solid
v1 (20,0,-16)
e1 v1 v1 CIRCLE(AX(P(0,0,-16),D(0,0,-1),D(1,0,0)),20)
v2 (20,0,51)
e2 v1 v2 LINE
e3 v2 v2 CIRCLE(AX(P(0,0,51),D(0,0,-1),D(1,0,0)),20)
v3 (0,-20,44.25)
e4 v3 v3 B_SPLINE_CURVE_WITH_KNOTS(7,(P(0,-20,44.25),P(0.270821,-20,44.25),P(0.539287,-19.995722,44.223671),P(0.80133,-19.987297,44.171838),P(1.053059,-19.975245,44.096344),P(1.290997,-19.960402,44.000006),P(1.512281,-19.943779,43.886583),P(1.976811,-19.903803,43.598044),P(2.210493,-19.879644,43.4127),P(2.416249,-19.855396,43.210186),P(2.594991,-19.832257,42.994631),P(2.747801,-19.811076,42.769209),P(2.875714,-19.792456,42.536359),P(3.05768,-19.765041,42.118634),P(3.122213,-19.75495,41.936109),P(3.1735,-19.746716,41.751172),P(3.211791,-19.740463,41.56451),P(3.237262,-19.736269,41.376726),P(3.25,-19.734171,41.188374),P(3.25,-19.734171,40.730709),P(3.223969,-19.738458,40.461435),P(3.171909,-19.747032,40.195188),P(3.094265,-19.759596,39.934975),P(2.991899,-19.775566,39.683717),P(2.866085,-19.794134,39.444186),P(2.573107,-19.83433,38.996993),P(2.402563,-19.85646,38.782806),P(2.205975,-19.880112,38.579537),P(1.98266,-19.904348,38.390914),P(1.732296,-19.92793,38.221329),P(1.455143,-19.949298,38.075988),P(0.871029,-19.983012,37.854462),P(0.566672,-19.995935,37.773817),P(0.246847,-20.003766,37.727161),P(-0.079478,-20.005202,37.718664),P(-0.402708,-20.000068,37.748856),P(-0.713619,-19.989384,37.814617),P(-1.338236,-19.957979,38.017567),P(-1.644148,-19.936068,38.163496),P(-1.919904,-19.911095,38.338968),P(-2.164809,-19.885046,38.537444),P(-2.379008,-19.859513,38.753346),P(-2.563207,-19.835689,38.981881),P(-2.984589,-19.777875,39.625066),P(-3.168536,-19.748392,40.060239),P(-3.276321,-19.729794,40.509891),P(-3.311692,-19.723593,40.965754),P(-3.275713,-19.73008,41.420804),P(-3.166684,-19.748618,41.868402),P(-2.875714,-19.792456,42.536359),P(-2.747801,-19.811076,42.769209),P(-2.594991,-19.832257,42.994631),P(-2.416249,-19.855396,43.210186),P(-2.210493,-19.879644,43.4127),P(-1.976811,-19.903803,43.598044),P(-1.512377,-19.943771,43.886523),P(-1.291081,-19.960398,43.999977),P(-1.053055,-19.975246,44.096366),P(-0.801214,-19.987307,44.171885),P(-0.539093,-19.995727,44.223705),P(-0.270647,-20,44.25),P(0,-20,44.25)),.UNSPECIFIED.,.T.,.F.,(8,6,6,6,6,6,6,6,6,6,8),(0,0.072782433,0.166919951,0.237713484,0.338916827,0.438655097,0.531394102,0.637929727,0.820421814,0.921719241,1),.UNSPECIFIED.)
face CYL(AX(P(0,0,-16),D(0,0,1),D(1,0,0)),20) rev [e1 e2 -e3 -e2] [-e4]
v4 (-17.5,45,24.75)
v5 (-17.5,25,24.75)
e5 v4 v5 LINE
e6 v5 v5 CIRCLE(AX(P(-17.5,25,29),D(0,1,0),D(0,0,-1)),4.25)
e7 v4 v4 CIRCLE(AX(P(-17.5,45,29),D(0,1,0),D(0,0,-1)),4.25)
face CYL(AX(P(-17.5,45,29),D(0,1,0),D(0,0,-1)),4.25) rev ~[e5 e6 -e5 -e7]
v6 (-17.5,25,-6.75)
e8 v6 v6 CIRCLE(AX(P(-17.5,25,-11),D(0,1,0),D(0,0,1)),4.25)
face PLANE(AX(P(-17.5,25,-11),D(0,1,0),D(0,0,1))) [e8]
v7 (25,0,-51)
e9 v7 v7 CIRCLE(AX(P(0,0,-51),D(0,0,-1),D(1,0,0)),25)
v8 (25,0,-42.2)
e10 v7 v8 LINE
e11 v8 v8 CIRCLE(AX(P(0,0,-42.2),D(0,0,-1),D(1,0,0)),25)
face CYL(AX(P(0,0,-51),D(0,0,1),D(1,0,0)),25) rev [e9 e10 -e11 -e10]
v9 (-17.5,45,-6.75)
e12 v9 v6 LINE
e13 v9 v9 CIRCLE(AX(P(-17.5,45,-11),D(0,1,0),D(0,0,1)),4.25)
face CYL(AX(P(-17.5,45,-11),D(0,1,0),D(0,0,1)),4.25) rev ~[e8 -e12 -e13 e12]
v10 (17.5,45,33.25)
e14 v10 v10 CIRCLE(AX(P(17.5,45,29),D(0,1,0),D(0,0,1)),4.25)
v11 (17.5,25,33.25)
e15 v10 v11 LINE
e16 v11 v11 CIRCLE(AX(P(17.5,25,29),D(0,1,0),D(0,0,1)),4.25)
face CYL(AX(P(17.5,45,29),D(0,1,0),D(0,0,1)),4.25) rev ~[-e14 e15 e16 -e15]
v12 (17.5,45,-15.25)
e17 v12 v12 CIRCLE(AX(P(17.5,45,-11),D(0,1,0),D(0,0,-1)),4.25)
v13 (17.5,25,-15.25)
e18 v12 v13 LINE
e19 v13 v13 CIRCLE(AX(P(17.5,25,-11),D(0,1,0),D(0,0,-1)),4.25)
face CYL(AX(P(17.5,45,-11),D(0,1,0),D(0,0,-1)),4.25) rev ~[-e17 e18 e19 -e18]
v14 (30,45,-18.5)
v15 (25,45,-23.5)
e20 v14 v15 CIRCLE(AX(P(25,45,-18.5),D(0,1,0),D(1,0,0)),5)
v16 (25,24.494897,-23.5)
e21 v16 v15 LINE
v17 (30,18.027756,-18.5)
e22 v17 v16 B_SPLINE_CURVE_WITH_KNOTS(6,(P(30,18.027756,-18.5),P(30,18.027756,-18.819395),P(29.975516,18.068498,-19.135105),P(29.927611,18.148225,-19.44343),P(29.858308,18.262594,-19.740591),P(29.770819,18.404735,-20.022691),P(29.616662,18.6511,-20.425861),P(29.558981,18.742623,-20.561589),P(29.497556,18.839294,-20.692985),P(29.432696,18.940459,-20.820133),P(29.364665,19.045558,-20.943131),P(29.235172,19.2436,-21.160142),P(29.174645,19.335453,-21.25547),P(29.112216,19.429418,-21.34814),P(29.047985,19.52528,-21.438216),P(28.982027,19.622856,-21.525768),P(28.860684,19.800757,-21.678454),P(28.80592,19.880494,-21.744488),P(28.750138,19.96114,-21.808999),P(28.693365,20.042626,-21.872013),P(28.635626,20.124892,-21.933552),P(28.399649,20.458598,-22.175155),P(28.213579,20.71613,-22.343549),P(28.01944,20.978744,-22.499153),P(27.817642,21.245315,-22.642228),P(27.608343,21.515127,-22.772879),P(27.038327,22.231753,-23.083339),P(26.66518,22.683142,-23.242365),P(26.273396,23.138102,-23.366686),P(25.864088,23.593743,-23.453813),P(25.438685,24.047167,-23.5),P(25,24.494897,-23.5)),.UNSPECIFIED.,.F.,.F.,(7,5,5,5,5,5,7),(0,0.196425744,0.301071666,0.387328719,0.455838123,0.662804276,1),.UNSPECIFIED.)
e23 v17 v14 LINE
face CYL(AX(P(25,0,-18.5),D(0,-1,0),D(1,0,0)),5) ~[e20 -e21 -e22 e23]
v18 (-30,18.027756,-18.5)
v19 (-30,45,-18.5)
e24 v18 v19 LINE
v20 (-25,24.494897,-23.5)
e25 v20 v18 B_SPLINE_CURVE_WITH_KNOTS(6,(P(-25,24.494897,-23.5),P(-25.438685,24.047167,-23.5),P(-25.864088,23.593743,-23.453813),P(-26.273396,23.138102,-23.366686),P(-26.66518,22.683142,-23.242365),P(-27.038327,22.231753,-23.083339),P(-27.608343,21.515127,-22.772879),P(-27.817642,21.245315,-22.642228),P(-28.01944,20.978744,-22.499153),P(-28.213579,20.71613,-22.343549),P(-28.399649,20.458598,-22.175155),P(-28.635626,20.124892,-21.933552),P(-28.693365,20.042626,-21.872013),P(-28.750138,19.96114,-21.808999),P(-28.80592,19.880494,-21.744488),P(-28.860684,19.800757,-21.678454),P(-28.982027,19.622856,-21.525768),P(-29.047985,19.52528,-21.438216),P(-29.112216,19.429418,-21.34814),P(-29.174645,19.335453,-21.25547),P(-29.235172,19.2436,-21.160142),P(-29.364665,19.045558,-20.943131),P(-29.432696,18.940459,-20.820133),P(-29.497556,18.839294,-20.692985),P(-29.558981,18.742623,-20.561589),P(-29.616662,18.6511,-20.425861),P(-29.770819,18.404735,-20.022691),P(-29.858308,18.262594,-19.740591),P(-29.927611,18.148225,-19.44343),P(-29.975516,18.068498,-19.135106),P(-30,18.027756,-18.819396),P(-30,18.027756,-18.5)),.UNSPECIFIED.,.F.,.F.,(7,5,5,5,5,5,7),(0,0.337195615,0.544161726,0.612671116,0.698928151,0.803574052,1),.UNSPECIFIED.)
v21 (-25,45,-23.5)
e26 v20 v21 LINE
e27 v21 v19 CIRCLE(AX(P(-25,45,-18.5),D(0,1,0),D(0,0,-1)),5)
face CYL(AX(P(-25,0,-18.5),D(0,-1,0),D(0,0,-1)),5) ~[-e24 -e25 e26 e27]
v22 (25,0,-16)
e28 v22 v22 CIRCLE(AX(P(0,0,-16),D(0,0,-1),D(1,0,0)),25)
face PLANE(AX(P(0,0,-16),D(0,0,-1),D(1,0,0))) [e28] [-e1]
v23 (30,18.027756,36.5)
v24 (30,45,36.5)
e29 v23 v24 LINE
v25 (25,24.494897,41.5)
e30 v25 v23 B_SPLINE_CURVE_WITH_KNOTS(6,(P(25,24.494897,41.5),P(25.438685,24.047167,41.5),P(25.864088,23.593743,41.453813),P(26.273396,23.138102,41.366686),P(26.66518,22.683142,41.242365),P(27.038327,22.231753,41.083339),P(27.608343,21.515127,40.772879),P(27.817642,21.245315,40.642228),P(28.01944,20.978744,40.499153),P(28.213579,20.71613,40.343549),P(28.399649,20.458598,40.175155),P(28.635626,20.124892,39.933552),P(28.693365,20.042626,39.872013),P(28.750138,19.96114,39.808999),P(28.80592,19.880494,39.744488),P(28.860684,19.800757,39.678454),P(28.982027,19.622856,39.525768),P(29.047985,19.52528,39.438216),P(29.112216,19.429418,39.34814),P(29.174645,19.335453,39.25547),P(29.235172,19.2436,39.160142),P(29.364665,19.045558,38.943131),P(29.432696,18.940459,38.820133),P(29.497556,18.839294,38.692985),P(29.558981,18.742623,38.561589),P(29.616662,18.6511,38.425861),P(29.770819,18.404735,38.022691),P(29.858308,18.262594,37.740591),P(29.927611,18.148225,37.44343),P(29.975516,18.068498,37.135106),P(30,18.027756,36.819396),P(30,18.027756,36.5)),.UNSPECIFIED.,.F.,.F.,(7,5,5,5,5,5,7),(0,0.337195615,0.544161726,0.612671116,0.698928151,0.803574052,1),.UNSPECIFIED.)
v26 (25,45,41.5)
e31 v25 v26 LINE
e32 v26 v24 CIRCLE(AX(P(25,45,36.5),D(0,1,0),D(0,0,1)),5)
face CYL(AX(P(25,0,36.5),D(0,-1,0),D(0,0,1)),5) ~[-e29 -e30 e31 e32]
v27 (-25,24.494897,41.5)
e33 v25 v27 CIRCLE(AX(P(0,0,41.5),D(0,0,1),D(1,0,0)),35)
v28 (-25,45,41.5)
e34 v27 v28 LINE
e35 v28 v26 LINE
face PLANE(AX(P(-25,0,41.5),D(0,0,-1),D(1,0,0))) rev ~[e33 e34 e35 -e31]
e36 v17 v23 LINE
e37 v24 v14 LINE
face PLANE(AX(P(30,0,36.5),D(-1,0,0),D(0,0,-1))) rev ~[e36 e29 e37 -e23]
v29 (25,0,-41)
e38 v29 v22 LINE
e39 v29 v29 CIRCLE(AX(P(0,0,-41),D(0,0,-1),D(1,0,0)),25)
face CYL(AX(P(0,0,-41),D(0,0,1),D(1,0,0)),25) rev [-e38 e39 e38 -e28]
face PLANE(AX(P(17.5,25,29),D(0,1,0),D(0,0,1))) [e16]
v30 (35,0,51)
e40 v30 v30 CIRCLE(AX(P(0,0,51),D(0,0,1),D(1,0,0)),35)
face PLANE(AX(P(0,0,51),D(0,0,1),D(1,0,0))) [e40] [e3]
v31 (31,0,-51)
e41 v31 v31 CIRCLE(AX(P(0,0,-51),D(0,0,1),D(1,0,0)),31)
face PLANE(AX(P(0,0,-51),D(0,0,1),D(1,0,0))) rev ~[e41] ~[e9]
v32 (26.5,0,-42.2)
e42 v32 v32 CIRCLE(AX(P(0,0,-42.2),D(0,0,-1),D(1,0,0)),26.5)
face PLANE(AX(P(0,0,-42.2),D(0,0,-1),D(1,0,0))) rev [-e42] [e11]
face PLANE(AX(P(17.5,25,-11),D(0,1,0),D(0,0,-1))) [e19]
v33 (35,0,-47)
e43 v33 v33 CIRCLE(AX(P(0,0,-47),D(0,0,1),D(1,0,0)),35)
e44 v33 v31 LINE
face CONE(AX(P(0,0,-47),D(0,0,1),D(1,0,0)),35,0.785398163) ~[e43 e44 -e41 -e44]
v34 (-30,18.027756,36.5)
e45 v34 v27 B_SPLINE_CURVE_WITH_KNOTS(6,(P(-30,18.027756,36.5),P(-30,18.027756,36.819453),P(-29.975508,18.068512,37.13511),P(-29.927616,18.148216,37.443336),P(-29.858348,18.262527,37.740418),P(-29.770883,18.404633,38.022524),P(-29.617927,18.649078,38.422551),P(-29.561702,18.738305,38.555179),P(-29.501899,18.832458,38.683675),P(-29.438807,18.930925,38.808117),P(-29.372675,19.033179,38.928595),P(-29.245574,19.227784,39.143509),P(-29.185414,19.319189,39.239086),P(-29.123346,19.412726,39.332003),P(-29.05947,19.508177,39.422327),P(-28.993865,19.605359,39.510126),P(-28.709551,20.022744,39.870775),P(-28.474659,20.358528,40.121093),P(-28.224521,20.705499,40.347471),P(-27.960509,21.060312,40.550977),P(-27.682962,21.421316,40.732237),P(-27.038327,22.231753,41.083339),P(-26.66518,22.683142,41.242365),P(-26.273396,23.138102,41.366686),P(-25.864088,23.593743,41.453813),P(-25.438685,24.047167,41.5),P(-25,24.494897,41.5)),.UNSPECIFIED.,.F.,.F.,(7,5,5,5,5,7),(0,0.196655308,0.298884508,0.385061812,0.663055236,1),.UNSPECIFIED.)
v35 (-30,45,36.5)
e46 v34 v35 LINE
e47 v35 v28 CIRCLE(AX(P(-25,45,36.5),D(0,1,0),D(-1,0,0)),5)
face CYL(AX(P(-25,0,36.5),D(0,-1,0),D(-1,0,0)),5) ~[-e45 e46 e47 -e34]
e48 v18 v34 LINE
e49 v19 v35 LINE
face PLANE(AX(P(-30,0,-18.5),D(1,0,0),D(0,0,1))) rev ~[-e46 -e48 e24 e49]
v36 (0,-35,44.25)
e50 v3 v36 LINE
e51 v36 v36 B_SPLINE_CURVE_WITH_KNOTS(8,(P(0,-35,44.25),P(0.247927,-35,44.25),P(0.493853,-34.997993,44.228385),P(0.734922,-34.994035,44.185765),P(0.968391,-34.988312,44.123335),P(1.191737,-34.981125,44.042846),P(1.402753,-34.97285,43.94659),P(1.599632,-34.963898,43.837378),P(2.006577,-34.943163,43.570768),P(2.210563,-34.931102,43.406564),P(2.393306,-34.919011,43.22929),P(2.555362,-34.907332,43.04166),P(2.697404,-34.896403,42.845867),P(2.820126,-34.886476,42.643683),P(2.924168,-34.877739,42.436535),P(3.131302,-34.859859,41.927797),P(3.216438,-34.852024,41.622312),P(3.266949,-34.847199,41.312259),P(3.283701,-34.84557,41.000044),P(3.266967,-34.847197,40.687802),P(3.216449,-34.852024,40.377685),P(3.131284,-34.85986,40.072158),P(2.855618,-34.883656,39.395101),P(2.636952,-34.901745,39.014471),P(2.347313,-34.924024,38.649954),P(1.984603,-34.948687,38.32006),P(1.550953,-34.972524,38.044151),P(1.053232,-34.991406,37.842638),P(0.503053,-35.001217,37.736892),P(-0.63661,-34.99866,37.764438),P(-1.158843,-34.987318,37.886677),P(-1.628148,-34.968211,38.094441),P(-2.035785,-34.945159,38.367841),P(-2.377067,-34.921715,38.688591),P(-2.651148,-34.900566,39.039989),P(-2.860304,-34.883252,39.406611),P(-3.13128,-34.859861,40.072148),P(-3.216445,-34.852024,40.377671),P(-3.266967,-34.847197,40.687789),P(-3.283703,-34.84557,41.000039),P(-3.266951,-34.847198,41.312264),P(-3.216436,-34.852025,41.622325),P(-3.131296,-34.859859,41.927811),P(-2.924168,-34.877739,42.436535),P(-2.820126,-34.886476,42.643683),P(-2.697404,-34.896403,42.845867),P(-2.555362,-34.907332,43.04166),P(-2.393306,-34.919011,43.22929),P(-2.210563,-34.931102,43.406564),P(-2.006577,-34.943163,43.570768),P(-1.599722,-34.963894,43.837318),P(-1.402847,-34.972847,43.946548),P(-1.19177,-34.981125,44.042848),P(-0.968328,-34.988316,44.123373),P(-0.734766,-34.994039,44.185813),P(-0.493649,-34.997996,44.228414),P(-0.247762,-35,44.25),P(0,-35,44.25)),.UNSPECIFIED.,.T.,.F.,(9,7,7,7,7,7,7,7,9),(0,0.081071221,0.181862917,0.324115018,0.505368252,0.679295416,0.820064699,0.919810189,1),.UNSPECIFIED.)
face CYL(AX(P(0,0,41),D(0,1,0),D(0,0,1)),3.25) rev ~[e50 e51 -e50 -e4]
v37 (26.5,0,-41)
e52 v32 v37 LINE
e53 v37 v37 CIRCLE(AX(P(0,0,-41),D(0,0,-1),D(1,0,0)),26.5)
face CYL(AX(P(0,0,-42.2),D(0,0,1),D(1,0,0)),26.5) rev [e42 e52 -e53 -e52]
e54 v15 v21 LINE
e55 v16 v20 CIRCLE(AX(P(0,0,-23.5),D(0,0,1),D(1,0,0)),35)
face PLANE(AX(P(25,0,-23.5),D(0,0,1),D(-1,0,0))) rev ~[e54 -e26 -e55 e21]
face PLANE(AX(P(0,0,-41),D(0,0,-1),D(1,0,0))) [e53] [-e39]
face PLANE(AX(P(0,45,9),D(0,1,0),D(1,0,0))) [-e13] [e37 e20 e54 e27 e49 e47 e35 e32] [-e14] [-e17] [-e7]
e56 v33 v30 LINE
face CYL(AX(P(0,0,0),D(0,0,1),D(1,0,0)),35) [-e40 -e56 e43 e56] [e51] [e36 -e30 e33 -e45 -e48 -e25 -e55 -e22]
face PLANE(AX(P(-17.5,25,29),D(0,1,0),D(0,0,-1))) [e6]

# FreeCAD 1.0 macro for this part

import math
import FreeCAD as App
import Part
import Sketcher

V = App.Vector


def edges_at(feature, points):
    """Names of the edges that pass closest to the given points."""
    edges = feature.Shape.Edges
    near = lambda p: min(range(len(edges)), key=lambda i: edges[i].distToShape(Part.Vertex(*p))[0])
    return sorted({f"Edge{near(p) + 1}" for p in points})


def add_polygon(sketch, points):
    """Adds a closed chain of lines whose ends are joined by coincident constraints."""
    first, n = sketch.GeometryCount, len(points)
    for a, b in zip(points, points[1:] + points[:1]):
        sketch.addGeometry(Part.LineSegment(App.Vector(*a, 0), App.Vector(*b, 0)), False)
    for i in range(n):
        sketch.addConstraint(Sketcher.Constraint("Coincident", first + i, 2, first + (i + 1) % n, 1))

doc = App.newDocument("Part")
body = doc.addObject("PartDesign::Body", "Body")

# Sketch on XY plane
sketch1 = body.newObject("Sketcher::SketchObject", "Sketch")
sketch1.AttachmentSupport = (doc.getObject("XY_Plane"), [""])
sketch1.MapMode = "FlatFace"
sketch1.addGeometry(Part.Circle(V(0, 0, 0), V(0, 0, 1), 35), False)
sketch1.addConstraint(Sketcher.Constraint("Coincident", 0, 3, -1, 1))
sketch1.addConstraint(Sketcher.Constraint("Diameter", 0, 70.0))
pad1 = body.newObject("PartDesign::Pad", "Pad")
pad1.Profile = sketch1
pad1.Length = 102
pad1.Midplane = True

# Sketch on XZ plane
sketch2 = body.newObject("Sketcher::SketchObject", "Sketch001")
sketch2.AttachmentSupport = (doc.getObject("XZ_Plane"), [""])
sketch2.MapMode = "FlatFace"
sketch2.addGeometry(Part.LineSegment(V(-25, 42, 0), V(25, 42, 0)), False)
sketch2.addGeometry(Part.ArcOfCircle(Part.Circle(V(25, 36, 0), V(0, 0, 1), 5), math.radians(0), math.radians(90)), False)
sketch2.addGeometry(Part.LineSegment(V(30, 36, 0), V(30, -18, 0)), False)
sketch2.addGeometry(Part.ArcOfCircle(Part.Circle(V(25, -18, 0), V(0, 0, 1), 5), math.radians(-90), math.radians(0)), False)
sketch2.addGeometry(Part.LineSegment(V(25, -24, 0), V(-25, -24, 0)), False)
sketch2.addGeometry(Part.ArcOfCircle(Part.Circle(V(-25, -18, 0), V(0, 0, 1), 5), math.radians(180), math.radians(270)), False)
sketch2.addGeometry(Part.LineSegment(V(-30, -18, 0), V(-30, 36, 0)), False)
sketch2.addGeometry(Part.ArcOfCircle(Part.Circle(V(-25, 36, 0), V(0, 0, 1), 5), math.radians(90), math.radians(180)), False)
sketch2.addConstraint(Sketcher.Constraint("Tangent", 0, 2, 1, 2))
sketch2.addConstraint(Sketcher.Constraint("Tangent", 1, 1, 2, 1))
sketch2.addConstraint(Sketcher.Constraint("Tangent", 2, 2, 3, 2))
sketch2.addConstraint(Sketcher.Constraint("Tangent", 3, 1, 4, 1))
sketch2.addConstraint(Sketcher.Constraint("Tangent", 4, 2, 5, 2))
sketch2.addConstraint(Sketcher.Constraint("Tangent", 5, 1, 6, 1))
sketch2.addConstraint(Sketcher.Constraint("Tangent", 6, 2, 7, 2))
sketch2.addConstraint(Sketcher.Constraint("Tangent", 7, 1, 0, 1))
sketch2.addConstraint(Sketcher.Constraint("Horizontal", 0))
sketch2.addConstraint(Sketcher.Constraint("Vertical", 2))
sketch2.addConstraint(Sketcher.Constraint("Horizontal", 4))
sketch2.addConstraint(Sketcher.Constraint("Vertical", 6))
sketch2.addConstraint(Sketcher.Constraint("Equal", 1, 3))
sketch2.addConstraint(Sketcher.Constraint("Equal", 3, 5))
sketch2.addConstraint(Sketcher.Constraint("Equal", 5, 7))
sketch2.addConstraint(Sketcher.Constraint("Radius", 1, 5.0))
sketch2.addConstraint(Sketcher.Constraint("DistanceX", 0, 1, 0, 2, 50.0))
sketch2.addConstraint(Sketcher.Constraint("DistanceY", 2, 2, 2, 1, 55.0))
sketch2.addConstraint(Sketcher.Constraint("DistanceX", -1, 1, 1, 3, 25.0))
sketch2.addConstraint(Sketcher.Constraint("DistanceY", -1, 1, 1, 3, 36.5))
pad2 = body.newObject("PartDesign::Pad", "Pad001")
pad2.Profile = sketch2
pad2.Length = 45
pad2.Reversed = True

# Sketch on YZ plane
sketch3 = body.newObject("Sketcher::SketchObject", "Sketch002")
sketch3.AttachmentSupport = (doc.getObject("YZ_Plane"), [""])
sketch3.MapMode = "FlatFace"
add_polygon(sketch3, [(25, -51), (25, -42.2), (26.5, -42.2), (26.5, -41), (25, -41), (25, -16), (20, -16), (20, 51), (0, 51), (0, -51)])  # lines 0-9
sketch3.addConstraint(Sketcher.Constraint("Vertical", 0))
sketch3.addConstraint(Sketcher.Constraint("Horizontal", 1))
sketch3.addConstraint(Sketcher.Constraint("Vertical", 2))
sketch3.addConstraint(Sketcher.Constraint("Horizontal", 3))
sketch3.addConstraint(Sketcher.Constraint("Vertical", 4))
sketch3.addConstraint(Sketcher.Constraint("Horizontal", 5))
sketch3.addConstraint(Sketcher.Constraint("Vertical", 6))
sketch3.addConstraint(Sketcher.Constraint("Horizontal", 7))
sketch3.addConstraint(Sketcher.Constraint("Vertical", 8))
sketch3.addConstraint(Sketcher.Constraint("Horizontal", 9))
sketch3.addConstraint(Sketcher.Constraint("Symmetric", 7, 2, 8, 2, -1, 1))
sketch3.addConstraint(Sketcher.Constraint("Vertical", 0, 2, 3, 2))
sketch3.addConstraint(Sketcher.Constraint("Equal", 9, 4))
sketch3.addConstraint(Sketcher.Constraint("DistanceX", 5, 2, 5, 1, 5.0))
sketch3.addConstraint(Sketcher.Constraint("DistanceX", 7, 2, 7, 1, 20.0))
sketch3.addConstraint(Sketcher.Constraint("DistanceY", 6, 1, 6, 2, 67.0))
sketch3.addConstraint(Sketcher.Constraint("DistanceY", 8, 2, 8, 1, 102.0))
sketch3.addConstraint(Sketcher.Constraint("DistanceX", 1, 1, 1, 2, 1.5))
sketch3.addConstraint(Sketcher.Constraint("DistanceY", 0, 1, 0, 2, 8.8))
groove = body.newObject("PartDesign::Groove", "Groove")
groove.Profile = sketch3
groove.ReferenceAxis = (sketch3, ["V_Axis"])
groove.Angle = 360
doc.recompute()

chamfer = body.newObject("PartDesign::Chamfer", "Chamfer")
chamfer.Base = (groove, edges_at(groove, [(-35, 0, -51)]))
chamfer.Size = 4

# Sketch on XZ plane
sketch4 = body.newObject("Sketcher::SketchObject", "Sketch003")
sketch4.AttachmentSupport = (doc.getObject("XZ_Plane"), [""])
sketch4.MapMode = "FlatFace"
sketch4.AttachmentOffset = App.Placement(V(0, 0, -45), App.Rotation())
sketch4.addGeometry(Part.Circle(V(-17.5, -11, 0), V(0, 0, 1), 4.2), False)
sketch4.addGeometry(Part.Circle(V(17.5, -11, 0), V(0, 0, 1), 4.2), False)
sketch4.addGeometry(Part.Circle(V(17.5, 29, 0), V(0, 0, 1), 4.2), False)
sketch4.addGeometry(Part.Circle(V(-17.5, 29, 0), V(0, 0, 1), 4.2), False)
sketch4.addConstraint(Sketcher.Constraint("Equal", 0, 1))
sketch4.addConstraint(Sketcher.Constraint("Equal", 1, 2))
sketch4.addConstraint(Sketcher.Constraint("Equal", 2, 3))
sketch4.addConstraint(Sketcher.Constraint("Symmetric", 0, 3, 1, 3, -2))
sketch4.addConstraint(Sketcher.Constraint("Symmetric", 2, 3, 3, 3, -2))
sketch4.addConstraint(Sketcher.Constraint("Vertical", 1, 3, 2, 3))
sketch4.addConstraint(Sketcher.Constraint("Diameter", 0, 8.5))
sketch4.addConstraint(Sketcher.Constraint("DistanceY", 0, 3, -1, 1, 11.0))
sketch4.addConstraint(Sketcher.Constraint("DistanceY", -1, 1, 2, 3, 29.0))
sketch4.addConstraint(Sketcher.Constraint("DistanceX", 0, 3, 1, 3, 35.0))
pocket1 = body.newObject("PartDesign::Pocket", "Pocket")
pocket1.Profile = sketch4
pocket1.Length = 20
pocket1.Reversed = True

# Sketch on XZ plane
sketch5 = body.newObject("Sketcher::SketchObject", "Sketch004")
sketch5.AttachmentSupport = (doc.getObject("XZ_Plane"), [""])
sketch5.MapMode = "FlatFace"
sketch5.addGeometry(Part.Circle(V(0, 41, 0), V(0, 0, 1), 3.2), False)
sketch5.addConstraint(Sketcher.Constraint("PointOnObject", 0, 3, -2))
sketch5.addConstraint(Sketcher.Constraint("Diameter", 0, 6.5))
sketch5.addConstraint(Sketcher.Constraint("DistanceY", -1, 1, 0, 3, 41.0))
pocket2 = body.newObject("PartDesign::Pocket", "Pocket001")
pocket2.Profile = sketch5
pocket2.Type = "ThroughAll"
pocket2.Reversed = True

doc.recompute()
